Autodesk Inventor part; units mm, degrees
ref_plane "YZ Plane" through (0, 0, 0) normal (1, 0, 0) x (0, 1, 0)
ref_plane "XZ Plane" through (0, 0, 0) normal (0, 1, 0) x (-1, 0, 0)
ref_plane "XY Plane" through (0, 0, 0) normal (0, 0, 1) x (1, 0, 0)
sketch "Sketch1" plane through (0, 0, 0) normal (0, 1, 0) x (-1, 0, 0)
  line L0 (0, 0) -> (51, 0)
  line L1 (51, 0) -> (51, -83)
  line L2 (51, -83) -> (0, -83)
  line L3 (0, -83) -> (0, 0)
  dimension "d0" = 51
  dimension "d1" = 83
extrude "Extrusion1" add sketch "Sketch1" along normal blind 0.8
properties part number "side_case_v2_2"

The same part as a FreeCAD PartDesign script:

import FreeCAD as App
import Part
import Sketcher

V = App.Vector
Q = App.Units.Quantity


def add_polygon(sketch, points):
    """Adds a closed chain of lines whose ends are joined by coincident constraints."""
    first, n = sketch.GeometryCount, len(points)
    for a, b in zip(points, points[1:] + points[:1]):
        sketch.addGeometry(Part.LineSegment(App.Vector(*a, 0), App.Vector(*b, 0)), False)
    for i in range(n):
        sketch.addConstraint(Sketcher.Constraint("Coincident", first + i, 2, first + (i + 1) % n, 1))

doc = App.newDocument("Part")
params = doc.addObject("Spreadsheet::Sheet", "Params")
for row, (alias, value) in enumerate([
    ("sketch1_width", "51 mm"),
    ("sketch1_height", "83 mm"),
    ("pad1_length", "0.8 mm"),
], start=1):
    params.set(f"A{row}", alias)
    params.set(f"B{row}", "=" + value)
    params.setAlias(f"B{row}", alias)

body = doc.addObject("PartDesign::Body", "Body")

sketch1 = body.newObject("Sketcher::SketchObject", "Sketch")
sketch1.AttachmentSupport = (doc.getObject("XZ_Plane"), [""])
sketch1.MapMode = "FlatFace"
add_polygon(sketch1, [(-51, 0), (0, 0), (0, -83), (-51, -83)])
sketch1.addConstraint(Sketcher.Constraint("Horizontal", 0))
sketch1.addConstraint(Sketcher.Constraint("Vertical", 1))
sketch1.addConstraint(Sketcher.Constraint("Horizontal", 2))
sketch1.addConstraint(Sketcher.Constraint("Vertical", 3))
sketch1.addConstraint(Sketcher.Constraint("Coincident", 0, 2, -1, 1))
sketch1.addConstraint(Sketcher.Constraint("DistanceX", 0, 1, 0, 2, Q("51 mm")))
sketch1.addConstraint(Sketcher.Constraint("DistanceY", 1, 2, 1, 1, Q("83 mm")))
sketch1.setExpression("Constraints[9]", "Params.sketch1_width")
sketch1.setExpression("Constraints[10]", "Params.sketch1_height")
pad1 = body.newObject("PartDesign::Pad", "Pad")
pad1.Profile = sketch1
pad1.setExpression("Length", "Params.pad1_length")
pad1.Reversed = True

doc.recompute()
